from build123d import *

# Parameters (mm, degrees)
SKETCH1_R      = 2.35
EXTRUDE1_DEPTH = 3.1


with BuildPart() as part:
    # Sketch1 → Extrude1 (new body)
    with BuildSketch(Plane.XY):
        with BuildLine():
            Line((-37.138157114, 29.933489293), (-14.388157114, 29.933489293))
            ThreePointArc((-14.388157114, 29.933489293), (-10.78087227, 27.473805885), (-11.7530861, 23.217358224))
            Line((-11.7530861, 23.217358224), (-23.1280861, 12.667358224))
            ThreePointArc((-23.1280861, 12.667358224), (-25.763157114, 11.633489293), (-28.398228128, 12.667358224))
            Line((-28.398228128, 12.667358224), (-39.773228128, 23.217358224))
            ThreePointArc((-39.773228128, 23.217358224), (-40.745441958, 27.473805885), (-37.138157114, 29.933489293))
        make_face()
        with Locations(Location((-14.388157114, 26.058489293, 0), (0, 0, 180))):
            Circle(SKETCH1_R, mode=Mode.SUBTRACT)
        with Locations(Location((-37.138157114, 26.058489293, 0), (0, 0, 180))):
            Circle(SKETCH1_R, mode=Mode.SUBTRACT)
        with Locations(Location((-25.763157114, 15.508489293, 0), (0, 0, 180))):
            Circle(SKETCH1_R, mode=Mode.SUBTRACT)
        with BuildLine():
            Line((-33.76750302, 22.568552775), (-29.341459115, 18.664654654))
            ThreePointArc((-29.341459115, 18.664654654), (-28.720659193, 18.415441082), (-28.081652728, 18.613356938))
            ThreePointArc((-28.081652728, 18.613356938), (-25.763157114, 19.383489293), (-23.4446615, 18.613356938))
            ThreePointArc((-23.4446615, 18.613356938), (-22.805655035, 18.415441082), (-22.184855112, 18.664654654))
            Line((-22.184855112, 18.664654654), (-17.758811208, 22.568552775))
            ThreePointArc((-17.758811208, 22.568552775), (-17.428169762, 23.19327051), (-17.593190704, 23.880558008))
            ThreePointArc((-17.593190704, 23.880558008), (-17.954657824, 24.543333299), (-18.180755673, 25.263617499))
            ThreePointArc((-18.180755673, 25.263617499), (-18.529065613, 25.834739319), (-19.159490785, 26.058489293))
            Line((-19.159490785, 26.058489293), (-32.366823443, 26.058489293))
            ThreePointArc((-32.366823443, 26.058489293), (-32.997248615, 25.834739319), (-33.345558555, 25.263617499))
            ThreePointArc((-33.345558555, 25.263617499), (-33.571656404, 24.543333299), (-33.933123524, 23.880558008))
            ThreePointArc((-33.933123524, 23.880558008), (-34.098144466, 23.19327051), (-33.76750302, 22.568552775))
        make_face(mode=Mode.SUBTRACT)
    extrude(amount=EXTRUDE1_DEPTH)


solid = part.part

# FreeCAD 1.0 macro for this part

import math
import FreeCAD as App
import Part
import Sketcher

doc = App.newDocument("Part")
params = doc.addObject("Spreadsheet::Sheet", "Params")
for row, (alias, value) in enumerate([
    ("sketch1_radius", "1 mm"),
    ("sketch1_diameter", "4.7 mm"),
    ("sketch1_width", "22.75 mm"),
    ("pad1_length", "3.1 mm"),
], start=1):
    params.set(f"A{row}", alias)
    params.set(f"B{row}", "=" + value)
    params.setAlias(f"B{row}", alias)

body = doc.addObject("PartDesign::Body", "Body")

# Sketch on XY plane
sketch1 = doc.addObject("Sketcher::SketchObject", "Sketch")
body.addObject(sketch1)
sketch1.AttachmentSupport = (doc.XY_Plane, [""])
sketch1.MapMode = "FlatFace"
sketch1.addGeometry([
    Part.LineSegment(App.Vector(-14.4, 29.9, 0), App.Vector(-37.1, 29.9, 0)),  # 0
    Part.ArcOfCircle(Part.Circle(App.Vector(-37.1, 26.1, 0), App.Vector(0, 0, 1), 3.9), math.radians(90), math.radians(227)),  # 1
    Part.LineSegment(App.Vector(-39.8, 23.2, 0), App.Vector(-28.4, 12.7, 0)),  # 2
    Part.ArcOfCircle(Part.Circle(App.Vector(-25.8, 15.5, 0), App.Vector(0, 0, 1), 3.9), math.radians(-133), math.radians(-47)),  # 3
    Part.LineSegment(App.Vector(-23.1, 12.7, 0), App.Vector(-11.8, 23.2, 0)),  # 4
    Part.ArcOfCircle(Part.Circle(App.Vector(-14.4, 26.1, 0), App.Vector(0, 0, 1), 3.9), math.radians(-47), math.radians(90)),  # 5
    Part.Circle(App.Vector(-25.8, 15.5, 0), App.Vector(0, 0, 1), 2.4),  # 6
    Part.ArcOfCircle(Part.Circle(App.Vector(-33.1, 23.3, 0), App.Vector(0, 0, 1), 1), math.radians(146), math.radians(229)),  # 7
    Part.ArcOfCircle(Part.Circle(App.Vector(-37.1, 26.1, 0), App.Vector(0, 0, 1), 3.9), math.radians(-34), math.radians(-12)),  # 8
    Part.ArcOfCircle(Part.Circle(App.Vector(-32.4, 25.1, 0), App.Vector(0, 0, 1), 1), math.radians(90), math.radians(168)),  # 9
    Part.LineSegment(App.Vector(-32.4, 26.1, 0), App.Vector(-19.2, 26.1, 0)),  # 10
    Part.ArcOfCircle(Part.Circle(App.Vector(-19.2, 25.1, 0), App.Vector(0, 0, 1), 1), math.radians(12), math.radians(90)),  # 11
    Part.ArcOfCircle(Part.Circle(App.Vector(-14.4, 26.1, 0), App.Vector(0, 0, 1), 3.9), math.radians(-168), math.radians(-146)),  # 12
    Part.ArcOfCircle(Part.Circle(App.Vector(-18.4, 23.3, 0), App.Vector(0, 0, 1), 1), math.radians(-49), math.radians(34)),  # 13
    Part.LineSegment(App.Vector(-17.8, 22.6, 0), App.Vector(-22.2, 18.7, 0)),  # 14
    Part.ArcOfCircle(Part.Circle(App.Vector(-22.8, 19.4, 0), App.Vector(0, 0, 1), 1), math.radians(-127), math.radians(-49)),  # 15
    Part.ArcOfCircle(Part.Circle(App.Vector(-25.8, 15.5, 0), App.Vector(0, 0, 1), 3.9), math.radians(53), math.radians(127)),  # 16
    Part.ArcOfCircle(Part.Circle(App.Vector(-28.7, 19.4, 0), App.Vector(0, 0, 1), 1), math.radians(-131), math.radians(-53)),  # 17
    Part.LineSegment(App.Vector(-29.3, 18.7, 0), App.Vector(-33.8, 22.6, 0)),  # 18
    Part.Circle(App.Vector(-14.4, 26.1, 0), App.Vector(0, 0, 1), 2.4),  # 19
    Part.Circle(App.Vector(-37.1, 26.1, 0), App.Vector(0, 0, 1), 2.4),  # 20
], False)
sketch1.addConstraint([
    Sketcher.Constraint("Tangent", 0, 2, 1, 1),
    Sketcher.Constraint("Tangent", 1, 2, 2, 1),
    Sketcher.Constraint("Tangent", 2, 2, 3, 1),
    Sketcher.Constraint("Tangent", 3, 2, 4, 1),
    Sketcher.Constraint("Tangent", 4, 2, 5, 1),
    Sketcher.Constraint("Tangent", 5, 2, 0, 1),
    Sketcher.Constraint("Tangent", 7, 1, 8, 1),
    Sketcher.Constraint("Tangent", 8, 2, 9, 2),
    Sketcher.Constraint("Tangent", 9, 1, 10, 1),
    Sketcher.Constraint("Tangent", 10, 2, 11, 2),
    Sketcher.Constraint("Tangent", 11, 1, 12, 1),
    Sketcher.Constraint("Tangent", 12, 2, 13, 2),
    Sketcher.Constraint("Tangent", 13, 1, 14, 1),
    Sketcher.Constraint("Tangent", 14, 2, 15, 2),
    Sketcher.Constraint("Tangent", 15, 1, 16, 1),
    Sketcher.Constraint("Tangent", 16, 2, 17, 2),
    Sketcher.Constraint("Tangent", 17, 1, 18, 1),
    Sketcher.Constraint("Tangent", 18, 2, 7, 2),
    Sketcher.Constraint("Horizontal", 0),
    Sketcher.Constraint("Horizontal", 10),
    Sketcher.Constraint("Coincident", 6, 3, 3, 3),
    Sketcher.Constraint("Coincident", 8, 3, 1, 3),
    Sketcher.Constraint("Coincident", 12, 3, 5, 3),
    Sketcher.Constraint("Coincident", 16, 3, 3, 3),
    Sketcher.Constraint("Coincident", 19, 3, 5, 3),
    Sketcher.Constraint("Coincident", 20, 3, 1, 3),
    Sketcher.Constraint("Equal", 1, 3),
    Sketcher.Constraint("Equal", 3, 5),
    Sketcher.Constraint("Equal", 5, 8),
    Sketcher.Constraint("Equal", 7, 9),
    Sketcher.Constraint("Equal", 9, 11),
    Sketcher.Constraint("Equal", 8, 12),
    Sketcher.Constraint("Equal", 11, 13),
    Sketcher.Constraint("Equal", 13, 15),
    Sketcher.Constraint("Equal", 12, 16),
    Sketcher.Constraint("Equal", 15, 17),
    Sketcher.Constraint("Equal", 6, 19),
    Sketcher.Constraint("Equal", 19, 20),
    Sketcher.Constraint("Horizontal", 7, 3, 13, 3),
    Sketcher.Constraint("Horizontal", 15, 3, 17, 3),
    Sketcher.Constraint("Horizontal", 2, 2, 3, 2),
    Sketcher.Constraint("Horizontal", 20, 3, 9, 1),
    Sketcher.Constraint("Radius", 7, 1.0),
    Sketcher.Constraint("Diameter", 6, 4.7),
    Sketcher.Constraint("Radius", 1, 3.875),
    Sketcher.Constraint("DistanceX", 0, 2, 0, 1, 22.75),
    Sketcher.Constraint("DistanceY", 3, 3, 1, 3, 10.55),
    Sketcher.Constraint("DistanceY", 15, 3, 13, 3, 3.903898),
    Sketcher.Constraint("DistanceX", 7, 1, 9, 3, 1.5663),
    Sketcher.Constraint("DistanceY", -1, 1, 1, 3, 26.058489),
    Sketcher.Constraint("DistanceX", 7, 3, -1, 1, 33.106018),
])
sketch1.setExpression("Constraints[42]", "Params.sketch1_radius")
sketch1.setExpression("Constraints[43]", "Params.sketch1_diameter")
sketch1.setExpression("Constraints[45]", "Params.sketch1_width")
pad1 = doc.addObject("PartDesign::Pad", "Pad")
body.addObject(pad1)
pad1.Profile = sketch1
pad1.setExpression("Length", "Params.pad1_length")

doc.recompute()
